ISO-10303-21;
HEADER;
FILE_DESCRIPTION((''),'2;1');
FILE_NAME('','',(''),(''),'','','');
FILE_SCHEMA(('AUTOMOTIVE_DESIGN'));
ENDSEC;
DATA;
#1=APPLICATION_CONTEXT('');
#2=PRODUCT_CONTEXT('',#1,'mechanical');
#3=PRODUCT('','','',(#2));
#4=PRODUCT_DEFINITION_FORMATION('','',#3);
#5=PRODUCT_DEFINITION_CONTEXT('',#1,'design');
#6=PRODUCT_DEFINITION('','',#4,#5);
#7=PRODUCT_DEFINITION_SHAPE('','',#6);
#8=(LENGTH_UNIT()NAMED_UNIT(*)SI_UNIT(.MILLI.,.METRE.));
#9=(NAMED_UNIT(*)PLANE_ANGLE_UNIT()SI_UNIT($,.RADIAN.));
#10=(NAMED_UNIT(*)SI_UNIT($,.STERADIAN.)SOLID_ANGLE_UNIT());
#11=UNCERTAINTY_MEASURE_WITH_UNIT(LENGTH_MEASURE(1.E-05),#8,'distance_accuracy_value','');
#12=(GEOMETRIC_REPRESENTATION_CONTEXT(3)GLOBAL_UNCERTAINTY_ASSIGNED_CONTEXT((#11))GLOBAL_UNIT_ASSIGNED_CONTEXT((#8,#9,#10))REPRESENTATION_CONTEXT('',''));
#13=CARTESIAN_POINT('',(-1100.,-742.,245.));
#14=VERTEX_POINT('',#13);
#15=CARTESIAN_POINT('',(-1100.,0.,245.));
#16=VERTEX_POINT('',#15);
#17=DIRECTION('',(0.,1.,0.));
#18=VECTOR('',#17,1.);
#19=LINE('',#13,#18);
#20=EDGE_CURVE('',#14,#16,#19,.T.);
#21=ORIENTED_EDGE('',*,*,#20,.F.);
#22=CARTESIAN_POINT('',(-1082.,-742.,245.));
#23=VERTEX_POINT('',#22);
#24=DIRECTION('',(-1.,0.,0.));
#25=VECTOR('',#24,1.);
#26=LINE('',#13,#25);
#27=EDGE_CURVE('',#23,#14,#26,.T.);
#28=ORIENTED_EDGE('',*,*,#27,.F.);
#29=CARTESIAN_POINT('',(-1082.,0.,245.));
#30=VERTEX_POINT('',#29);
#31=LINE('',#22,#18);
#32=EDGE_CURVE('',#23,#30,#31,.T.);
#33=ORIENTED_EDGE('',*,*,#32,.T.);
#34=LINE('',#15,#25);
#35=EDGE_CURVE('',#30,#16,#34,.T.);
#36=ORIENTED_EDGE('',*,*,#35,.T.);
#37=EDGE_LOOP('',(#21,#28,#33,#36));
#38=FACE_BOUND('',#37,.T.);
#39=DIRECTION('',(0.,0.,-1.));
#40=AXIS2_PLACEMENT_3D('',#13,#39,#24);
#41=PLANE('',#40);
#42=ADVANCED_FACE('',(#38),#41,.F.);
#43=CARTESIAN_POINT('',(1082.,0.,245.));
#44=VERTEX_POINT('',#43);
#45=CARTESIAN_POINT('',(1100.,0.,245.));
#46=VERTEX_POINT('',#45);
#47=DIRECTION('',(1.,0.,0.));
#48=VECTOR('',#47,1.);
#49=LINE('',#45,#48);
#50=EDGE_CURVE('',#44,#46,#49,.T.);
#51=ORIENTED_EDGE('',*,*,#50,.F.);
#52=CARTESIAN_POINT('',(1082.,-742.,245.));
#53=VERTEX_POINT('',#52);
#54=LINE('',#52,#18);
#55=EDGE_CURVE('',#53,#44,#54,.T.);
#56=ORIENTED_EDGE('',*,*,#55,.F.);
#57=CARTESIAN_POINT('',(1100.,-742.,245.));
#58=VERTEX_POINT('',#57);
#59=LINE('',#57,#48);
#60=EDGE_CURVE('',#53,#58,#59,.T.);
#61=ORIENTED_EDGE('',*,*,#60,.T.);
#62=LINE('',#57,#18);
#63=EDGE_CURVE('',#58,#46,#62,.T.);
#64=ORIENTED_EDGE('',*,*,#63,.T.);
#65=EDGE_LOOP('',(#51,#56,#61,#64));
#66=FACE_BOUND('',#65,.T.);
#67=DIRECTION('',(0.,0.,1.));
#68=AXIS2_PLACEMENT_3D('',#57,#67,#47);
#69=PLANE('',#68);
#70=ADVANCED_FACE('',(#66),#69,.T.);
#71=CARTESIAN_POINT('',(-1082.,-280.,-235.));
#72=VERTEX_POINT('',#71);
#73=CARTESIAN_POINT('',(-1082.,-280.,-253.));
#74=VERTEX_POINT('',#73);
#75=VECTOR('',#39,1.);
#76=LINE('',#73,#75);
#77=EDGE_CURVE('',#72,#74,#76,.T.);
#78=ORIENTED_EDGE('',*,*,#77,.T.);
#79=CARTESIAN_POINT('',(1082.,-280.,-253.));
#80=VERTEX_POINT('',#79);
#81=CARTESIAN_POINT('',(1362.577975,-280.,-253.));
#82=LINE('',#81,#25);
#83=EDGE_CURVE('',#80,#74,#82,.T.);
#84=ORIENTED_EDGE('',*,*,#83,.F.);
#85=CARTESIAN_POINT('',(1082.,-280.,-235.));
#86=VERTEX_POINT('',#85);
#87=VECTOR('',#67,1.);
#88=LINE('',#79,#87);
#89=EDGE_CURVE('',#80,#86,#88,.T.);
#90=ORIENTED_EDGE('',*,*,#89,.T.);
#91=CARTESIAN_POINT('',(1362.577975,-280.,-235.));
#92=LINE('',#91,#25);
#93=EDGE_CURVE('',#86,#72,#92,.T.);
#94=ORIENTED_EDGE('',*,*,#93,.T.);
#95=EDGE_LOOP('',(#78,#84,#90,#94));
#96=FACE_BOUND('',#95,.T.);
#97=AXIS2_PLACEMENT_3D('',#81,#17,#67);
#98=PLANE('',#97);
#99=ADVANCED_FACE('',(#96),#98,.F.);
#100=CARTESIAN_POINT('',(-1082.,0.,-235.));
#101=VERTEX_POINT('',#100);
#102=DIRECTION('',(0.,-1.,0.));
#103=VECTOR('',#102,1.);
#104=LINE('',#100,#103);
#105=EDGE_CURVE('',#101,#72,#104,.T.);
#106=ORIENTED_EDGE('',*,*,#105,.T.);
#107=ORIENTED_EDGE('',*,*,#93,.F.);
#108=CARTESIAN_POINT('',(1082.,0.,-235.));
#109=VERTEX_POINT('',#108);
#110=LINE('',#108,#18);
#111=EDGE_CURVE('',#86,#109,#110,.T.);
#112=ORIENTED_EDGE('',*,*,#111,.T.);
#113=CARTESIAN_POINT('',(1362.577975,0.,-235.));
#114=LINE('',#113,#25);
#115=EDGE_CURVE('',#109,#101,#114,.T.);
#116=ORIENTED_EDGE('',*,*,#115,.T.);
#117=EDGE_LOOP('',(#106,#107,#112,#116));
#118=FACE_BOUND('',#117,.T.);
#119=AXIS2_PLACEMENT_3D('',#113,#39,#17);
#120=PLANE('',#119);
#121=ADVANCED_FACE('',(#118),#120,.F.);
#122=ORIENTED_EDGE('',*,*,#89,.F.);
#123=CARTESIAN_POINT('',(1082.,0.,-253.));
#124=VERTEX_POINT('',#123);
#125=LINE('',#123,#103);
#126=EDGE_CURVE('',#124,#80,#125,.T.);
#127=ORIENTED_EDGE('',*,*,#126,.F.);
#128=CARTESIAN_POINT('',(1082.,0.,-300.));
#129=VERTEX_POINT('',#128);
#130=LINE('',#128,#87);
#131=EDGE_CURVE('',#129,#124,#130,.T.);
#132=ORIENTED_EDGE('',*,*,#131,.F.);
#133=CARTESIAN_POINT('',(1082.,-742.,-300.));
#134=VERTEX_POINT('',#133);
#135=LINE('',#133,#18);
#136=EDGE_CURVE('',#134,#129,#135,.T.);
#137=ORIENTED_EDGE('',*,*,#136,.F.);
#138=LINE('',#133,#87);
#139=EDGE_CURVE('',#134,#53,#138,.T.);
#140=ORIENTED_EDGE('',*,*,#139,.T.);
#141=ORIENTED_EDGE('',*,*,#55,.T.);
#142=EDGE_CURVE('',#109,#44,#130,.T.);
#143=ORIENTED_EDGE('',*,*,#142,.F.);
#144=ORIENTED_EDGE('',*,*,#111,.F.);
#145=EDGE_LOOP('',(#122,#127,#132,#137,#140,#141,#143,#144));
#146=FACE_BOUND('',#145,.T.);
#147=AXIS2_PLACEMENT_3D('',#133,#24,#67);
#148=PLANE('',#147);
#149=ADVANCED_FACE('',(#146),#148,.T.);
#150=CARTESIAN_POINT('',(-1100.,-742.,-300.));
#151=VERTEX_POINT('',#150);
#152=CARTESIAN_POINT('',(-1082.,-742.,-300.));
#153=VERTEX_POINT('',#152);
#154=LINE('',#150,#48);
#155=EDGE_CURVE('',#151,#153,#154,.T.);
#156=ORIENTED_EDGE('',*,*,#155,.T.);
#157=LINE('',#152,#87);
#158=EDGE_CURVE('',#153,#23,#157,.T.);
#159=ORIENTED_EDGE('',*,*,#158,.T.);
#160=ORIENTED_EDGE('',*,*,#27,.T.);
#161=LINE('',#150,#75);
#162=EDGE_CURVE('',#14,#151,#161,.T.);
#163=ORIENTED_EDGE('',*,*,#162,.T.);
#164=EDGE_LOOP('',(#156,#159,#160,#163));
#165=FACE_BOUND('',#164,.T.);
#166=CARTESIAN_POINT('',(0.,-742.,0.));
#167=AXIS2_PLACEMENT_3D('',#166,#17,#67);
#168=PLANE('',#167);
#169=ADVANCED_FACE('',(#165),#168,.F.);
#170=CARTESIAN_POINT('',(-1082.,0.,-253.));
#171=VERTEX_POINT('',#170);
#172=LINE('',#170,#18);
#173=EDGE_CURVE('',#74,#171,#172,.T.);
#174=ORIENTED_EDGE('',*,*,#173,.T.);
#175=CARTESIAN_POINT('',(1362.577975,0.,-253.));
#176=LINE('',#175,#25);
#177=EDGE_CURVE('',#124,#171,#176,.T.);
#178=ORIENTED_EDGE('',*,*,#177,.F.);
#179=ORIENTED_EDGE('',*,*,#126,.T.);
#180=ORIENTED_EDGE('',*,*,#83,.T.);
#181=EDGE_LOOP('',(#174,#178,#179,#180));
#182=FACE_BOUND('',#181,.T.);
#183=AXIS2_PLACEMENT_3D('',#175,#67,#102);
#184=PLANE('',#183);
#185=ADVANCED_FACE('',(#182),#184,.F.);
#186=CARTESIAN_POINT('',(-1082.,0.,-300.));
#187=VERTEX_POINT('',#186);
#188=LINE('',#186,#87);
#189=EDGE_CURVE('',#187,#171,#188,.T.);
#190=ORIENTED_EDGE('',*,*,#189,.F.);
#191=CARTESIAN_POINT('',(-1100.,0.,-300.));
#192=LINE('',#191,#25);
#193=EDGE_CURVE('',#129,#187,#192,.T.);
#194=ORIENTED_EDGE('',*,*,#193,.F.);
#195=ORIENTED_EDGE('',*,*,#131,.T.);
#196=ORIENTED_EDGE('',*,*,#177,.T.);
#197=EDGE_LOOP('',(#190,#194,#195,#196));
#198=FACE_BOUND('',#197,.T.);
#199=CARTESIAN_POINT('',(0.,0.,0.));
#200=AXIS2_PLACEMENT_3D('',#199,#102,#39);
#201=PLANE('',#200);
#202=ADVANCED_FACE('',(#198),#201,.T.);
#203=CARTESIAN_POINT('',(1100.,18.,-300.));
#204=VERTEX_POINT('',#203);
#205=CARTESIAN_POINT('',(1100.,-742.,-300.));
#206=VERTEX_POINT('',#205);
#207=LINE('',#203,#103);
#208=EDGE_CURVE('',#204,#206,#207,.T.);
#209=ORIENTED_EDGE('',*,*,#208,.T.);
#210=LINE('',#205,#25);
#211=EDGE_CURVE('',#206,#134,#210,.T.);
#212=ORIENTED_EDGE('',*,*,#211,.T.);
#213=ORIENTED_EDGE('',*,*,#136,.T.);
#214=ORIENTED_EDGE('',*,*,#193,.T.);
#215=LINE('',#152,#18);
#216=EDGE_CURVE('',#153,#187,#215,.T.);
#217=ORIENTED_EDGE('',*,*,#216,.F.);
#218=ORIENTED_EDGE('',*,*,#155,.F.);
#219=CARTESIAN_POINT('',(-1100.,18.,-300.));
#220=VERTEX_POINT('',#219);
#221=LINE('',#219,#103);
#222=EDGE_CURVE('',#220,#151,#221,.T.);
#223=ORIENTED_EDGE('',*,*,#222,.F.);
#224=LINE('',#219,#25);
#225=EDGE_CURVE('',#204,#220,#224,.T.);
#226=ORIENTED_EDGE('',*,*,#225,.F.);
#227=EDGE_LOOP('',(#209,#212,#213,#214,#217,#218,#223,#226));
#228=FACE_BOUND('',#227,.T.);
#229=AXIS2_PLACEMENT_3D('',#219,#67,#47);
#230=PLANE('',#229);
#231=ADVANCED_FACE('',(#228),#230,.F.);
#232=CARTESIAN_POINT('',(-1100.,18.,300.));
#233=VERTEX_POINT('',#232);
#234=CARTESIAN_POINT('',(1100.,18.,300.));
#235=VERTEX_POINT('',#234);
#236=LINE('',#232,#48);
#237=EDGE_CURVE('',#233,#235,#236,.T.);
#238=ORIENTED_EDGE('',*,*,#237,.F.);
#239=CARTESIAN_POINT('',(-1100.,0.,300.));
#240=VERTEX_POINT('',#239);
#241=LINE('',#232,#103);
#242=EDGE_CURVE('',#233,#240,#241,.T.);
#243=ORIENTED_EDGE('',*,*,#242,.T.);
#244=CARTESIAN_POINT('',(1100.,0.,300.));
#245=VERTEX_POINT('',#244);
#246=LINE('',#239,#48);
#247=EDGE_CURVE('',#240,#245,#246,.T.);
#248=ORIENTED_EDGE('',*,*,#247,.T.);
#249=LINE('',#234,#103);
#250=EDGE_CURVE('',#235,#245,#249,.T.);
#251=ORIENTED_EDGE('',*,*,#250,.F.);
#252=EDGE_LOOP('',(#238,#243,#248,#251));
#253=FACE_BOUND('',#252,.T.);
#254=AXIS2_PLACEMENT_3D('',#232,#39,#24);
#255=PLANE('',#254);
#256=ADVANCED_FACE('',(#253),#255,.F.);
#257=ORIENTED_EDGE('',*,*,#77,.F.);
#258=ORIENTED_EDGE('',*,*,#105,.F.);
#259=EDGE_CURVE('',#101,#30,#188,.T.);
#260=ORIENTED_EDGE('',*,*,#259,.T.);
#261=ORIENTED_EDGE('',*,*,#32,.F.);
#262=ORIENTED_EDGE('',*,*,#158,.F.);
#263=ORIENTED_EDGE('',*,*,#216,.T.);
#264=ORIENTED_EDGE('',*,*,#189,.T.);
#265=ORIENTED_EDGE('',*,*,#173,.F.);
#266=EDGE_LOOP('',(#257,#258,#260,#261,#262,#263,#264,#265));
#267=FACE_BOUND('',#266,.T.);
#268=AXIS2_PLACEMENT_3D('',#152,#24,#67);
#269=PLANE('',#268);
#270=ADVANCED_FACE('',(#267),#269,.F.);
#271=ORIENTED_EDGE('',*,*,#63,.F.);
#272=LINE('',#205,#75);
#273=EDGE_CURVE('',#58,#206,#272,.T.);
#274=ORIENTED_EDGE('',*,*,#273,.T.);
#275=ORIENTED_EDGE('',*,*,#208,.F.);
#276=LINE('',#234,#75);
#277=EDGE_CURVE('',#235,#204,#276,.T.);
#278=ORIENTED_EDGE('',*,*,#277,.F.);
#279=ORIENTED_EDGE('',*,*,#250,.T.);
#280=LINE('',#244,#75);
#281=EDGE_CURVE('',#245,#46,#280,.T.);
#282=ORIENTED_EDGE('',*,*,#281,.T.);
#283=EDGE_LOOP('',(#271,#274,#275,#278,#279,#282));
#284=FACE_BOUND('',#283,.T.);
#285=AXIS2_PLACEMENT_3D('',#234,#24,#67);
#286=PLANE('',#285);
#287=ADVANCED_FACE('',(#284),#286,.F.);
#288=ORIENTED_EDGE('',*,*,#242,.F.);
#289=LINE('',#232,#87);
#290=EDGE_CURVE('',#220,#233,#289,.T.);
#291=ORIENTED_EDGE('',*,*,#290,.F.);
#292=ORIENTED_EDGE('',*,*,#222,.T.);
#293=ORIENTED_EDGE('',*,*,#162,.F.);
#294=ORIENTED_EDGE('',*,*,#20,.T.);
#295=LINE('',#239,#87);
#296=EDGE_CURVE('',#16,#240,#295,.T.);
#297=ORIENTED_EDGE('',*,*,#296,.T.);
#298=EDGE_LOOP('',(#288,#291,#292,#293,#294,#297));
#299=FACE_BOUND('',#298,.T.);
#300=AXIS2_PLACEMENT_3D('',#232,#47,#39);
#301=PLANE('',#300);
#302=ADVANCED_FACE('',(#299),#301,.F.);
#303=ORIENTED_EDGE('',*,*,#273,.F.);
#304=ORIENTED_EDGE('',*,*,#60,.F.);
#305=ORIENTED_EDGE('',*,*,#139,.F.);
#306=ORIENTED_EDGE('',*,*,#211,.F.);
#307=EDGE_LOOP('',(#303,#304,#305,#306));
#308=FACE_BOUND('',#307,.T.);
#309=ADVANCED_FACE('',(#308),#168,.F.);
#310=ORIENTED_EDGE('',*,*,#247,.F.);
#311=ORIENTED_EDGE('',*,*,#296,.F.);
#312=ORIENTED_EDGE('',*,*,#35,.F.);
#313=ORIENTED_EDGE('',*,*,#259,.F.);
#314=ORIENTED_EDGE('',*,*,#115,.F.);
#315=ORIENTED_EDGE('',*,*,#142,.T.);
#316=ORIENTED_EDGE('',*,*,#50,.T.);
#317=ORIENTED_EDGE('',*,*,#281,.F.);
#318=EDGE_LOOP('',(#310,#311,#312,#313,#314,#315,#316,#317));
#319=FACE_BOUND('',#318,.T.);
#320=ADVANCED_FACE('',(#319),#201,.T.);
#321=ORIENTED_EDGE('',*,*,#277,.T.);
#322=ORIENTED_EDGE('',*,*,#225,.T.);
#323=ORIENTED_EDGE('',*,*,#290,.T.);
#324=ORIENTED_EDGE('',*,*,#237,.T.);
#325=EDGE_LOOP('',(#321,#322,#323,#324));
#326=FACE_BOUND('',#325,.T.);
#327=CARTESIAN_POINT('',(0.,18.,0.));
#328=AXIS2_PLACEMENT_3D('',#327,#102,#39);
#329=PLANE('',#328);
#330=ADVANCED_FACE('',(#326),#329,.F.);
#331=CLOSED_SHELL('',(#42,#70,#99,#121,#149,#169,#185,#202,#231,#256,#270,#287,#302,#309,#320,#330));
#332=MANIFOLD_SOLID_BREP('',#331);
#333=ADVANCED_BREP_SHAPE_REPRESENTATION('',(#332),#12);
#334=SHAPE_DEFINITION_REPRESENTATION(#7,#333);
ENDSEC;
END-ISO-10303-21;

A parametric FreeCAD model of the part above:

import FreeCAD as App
import Part
import Sketcher
from FreeCAD import Vector
Q = App.Units.Quantity


def add_polygon(sketch, points):
    """Adds a closed chain of lines whose ends are joined by coincident constraints."""
    first, n = sketch.GeometryCount, len(points)
    for a, b in zip(points, points[1:] + points[:1]):
        sketch.addGeometry(Part.LineSegment(App.Vector(*a, 0), App.Vector(*b, 0)), False)
    for i in range(n):
        sketch.addConstraint(Sketcher.Constraint("Coincident", first + i, 2, first + (i + 1) % n, 1))

doc = App.newDocument("Part")
body = doc.addObject("PartDesign::Body", "Body")

# Sketch on XZ plane
sketch1 = doc.addObject("Sketcher::SketchObject", "Sketch")
body.addObject(sketch1)
sketch1.AttachmentSupport = (doc.XZ_Plane, [""])
sketch1.MapMode = "FlatFace"
add_polygon(sketch1, [(-1100, -300), (-1100, 300), (1100, 300), (1100, -300)])  # lines 0-3
sketch1.addConstraint([
    Sketcher.Constraint("Vertical", 0),
    Sketcher.Constraint("Horizontal", 1),
    Sketcher.Constraint("Vertical", 2),
    Sketcher.Constraint("Horizontal", 3),
    Sketcher.Constraint("Symmetric", 0, 2, 2, 2, -1, 1),
    Sketcher.Constraint("DistanceX", 1, 1, 1, 2, Q("2200 mm")),
    Sketcher.Constraint("DistanceY", 0, 1, 0, 2, Q("600 mm")),
])
pad1 = doc.addObject("PartDesign::Pad", "Pad")
body.addObject(pad1)
pad1.Profile = sketch1
pad1.Length = 18
pad1.Reversed = True

# Sketch on XZ plane
sketch2 = doc.addObject("Sketcher::SketchObject", "Sketch001")
body.addObject(sketch2)
sketch2.AttachmentSupport = (doc.XZ_Plane, [""])
sketch2.MapMode = "FlatFace"
add_polygon(sketch2, [(-1100, 245), (-1100, -300), (-1082, -300), (-1082, 245)])  # lines 0-3
sketch2.addConstraint([
    Sketcher.Constraint("Vertical", 0),
    Sketcher.Constraint("Horizontal", 1),
    Sketcher.Constraint("Vertical", 2),
    Sketcher.Constraint("Horizontal", 3),
    Sketcher.Constraint("DistanceX", 1, 1, 1, 2, Q("18 mm")),
    Sketcher.Constraint("DistanceY", 0, 2, 0, 1, Q("545 mm")),
    Sketcher.Constraint("DistanceX", 0, 2, -1, 1, Q("1100 mm")),
    Sketcher.Constraint("DistanceY", 0, 2, -1, 1, Q("300 mm")),
])
pad2 = doc.addObject("PartDesign::Pad", "Pad001")
body.addObject(pad2)
pad2.Profile = sketch2
pad2.Length = 742
doc.recompute()

mirrored = doc.addObject("PartDesign::Mirrored", "Mirrored")
body.addObject(mirrored)
mirrored.Originals = [pad2]
mirrored.MirrorPlane = (doc.YZ_Plane, [""])
body.Tip = mirrored

# Sketch on YZ plane
sketch3 = doc.addObject("Sketcher::SketchObject", "Sketch002")
body.addObject(sketch3)
sketch3.AttachmentSupport = (doc.YZ_Plane, [""])
sketch3.MapMode = "FlatFace"
sketch3.AttachmentOffset = App.Placement(Vector(0, 0, -1082), App.Rotation())
add_polygon(sketch3, [(0, -235), (-280, -235), (-280, -253), (0, -253)])  # lines 0-3
sketch3.addConstraint([
    Sketcher.Constraint("Horizontal", 0),
    Sketcher.Constraint("Vertical", 1),
    Sketcher.Constraint("Horizontal", 2),
    Sketcher.Constraint("Vertical", 3),
    Sketcher.Constraint("PointOnObject", 2, 2, -2),
    Sketcher.Constraint("DistanceX", 0, 2, 0, 1, Q("280 mm")),
    Sketcher.Constraint("DistanceY", 1, 2, 1, 1, Q("18 mm")),
    Sketcher.Constraint("DistanceY", 0, 2, -1, 1, Q("235 mm")),
])
pad3 = doc.addObject("PartDesign::Pad", "Pad002")
body.addObject(pad3)
pad3.Profile = sketch3
pad3.Length = 2164

doc.recompute()
